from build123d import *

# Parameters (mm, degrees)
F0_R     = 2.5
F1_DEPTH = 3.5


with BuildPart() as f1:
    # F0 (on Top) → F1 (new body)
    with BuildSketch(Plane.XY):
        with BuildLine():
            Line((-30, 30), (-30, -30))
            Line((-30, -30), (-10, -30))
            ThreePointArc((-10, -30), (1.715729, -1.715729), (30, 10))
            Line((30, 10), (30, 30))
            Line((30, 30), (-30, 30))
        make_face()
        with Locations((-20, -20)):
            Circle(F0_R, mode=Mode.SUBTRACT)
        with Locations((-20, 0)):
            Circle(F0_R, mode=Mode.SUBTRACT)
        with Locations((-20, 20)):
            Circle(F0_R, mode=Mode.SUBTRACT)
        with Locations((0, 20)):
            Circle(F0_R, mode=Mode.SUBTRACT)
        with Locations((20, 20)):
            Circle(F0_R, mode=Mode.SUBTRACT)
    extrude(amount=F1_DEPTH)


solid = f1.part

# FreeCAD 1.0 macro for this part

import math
import FreeCAD as App
import Part
import Sketcher
from FreeCAD import Vector
Q = App.Units.Quantity

doc = App.newDocument("Part")
body = doc.addObject("PartDesign::Body", "Body")

# Sketch on XY plane
sketch1 = doc.addObject("Sketcher::SketchObject", "Sketch")
body.addObject(sketch1)
sketch1.AttachmentSupport = (doc.XY_Plane, [""])
sketch1.MapMode = "FlatFace"
sketch1.addGeometry(Part.LineSegment(Vector(-30, 30, 0), Vector(-30, -30, 0)), False)
sketch1.addGeometry(Part.LineSegment(Vector(-30, -30, 0), Vector(-10, -30, 0)), False)
sketch1.addGeometry(Part.ArcOfCircle(Part.Circle(Vector(30, -30, 0), Vector(0, 0, 1), 40), math.radians(90), math.radians(180)), False)
sketch1.addGeometry(Part.LineSegment(Vector(30, 10, 0), Vector(30, 30, 0)), False)
sketch1.addGeometry(Part.LineSegment(Vector(30, 30, 0), Vector(-30, 30, 0)), False)
sketch1.addGeometry(Part.Circle(Vector(-20, -20, 0), Vector(0, 0, 1), 2.5), False)
sketch1.addGeometry(Part.Circle(Vector(-20, 0, 0), Vector(0, 0, 1), 2.5), False)
sketch1.addGeometry(Part.Circle(Vector(-20, 20, 0), Vector(0, 0, 1), 2.5), False)
sketch1.addGeometry(Part.Circle(Vector(0, 20, 0), Vector(0, 0, 1), 2.5), False)
sketch1.addGeometry(Part.Circle(Vector(20, 20, 0), Vector(0, 0, 1), 2.5), False)
sketch1.addConstraint(Sketcher.Constraint("Coincident", 0, 2, 1, 1))
sketch1.addConstraint(Sketcher.Constraint("Coincident", 1, 2, 2, 2))
sketch1.addConstraint(Sketcher.Constraint("Coincident", 2, 1, 3, 1))
sketch1.addConstraint(Sketcher.Constraint("Coincident", 3, 2, 4, 1))
sketch1.addConstraint(Sketcher.Constraint("Coincident", 4, 2, 0, 1))
sketch1.addConstraint(Sketcher.Constraint("Vertical", 0))
sketch1.addConstraint(Sketcher.Constraint("Horizontal", 1))
sketch1.addConstraint(Sketcher.Constraint("Vertical", 3))
sketch1.addConstraint(Sketcher.Constraint("Horizontal", 4))
sketch1.addConstraint(Sketcher.Constraint("Equal", 5, 6))
sketch1.addConstraint(Sketcher.Constraint("Equal", 6, 7))
sketch1.addConstraint(Sketcher.Constraint("Equal", 7, 8))
sketch1.addConstraint(Sketcher.Constraint("Equal", 8, 9))
sketch1.addConstraint(Sketcher.Constraint("Symmetric", 5, 3, 9, 3, -1, 1))
sketch1.addConstraint(Sketcher.Constraint("Symmetric", 0, 2, 3, 2, -1, 1))
sketch1.addConstraint(Sketcher.Constraint("Symmetric", 7, 3, 9, 3, -2))
sketch1.addConstraint(Sketcher.Constraint("PointOnObject", 6, 3, -1))
sketch1.addConstraint(Sketcher.Constraint("PointOnObject", 8, 3, -2))
sketch1.addConstraint(Sketcher.Constraint("Horizontal", 7, 3, 8, 3))
sketch1.addConstraint(Sketcher.Constraint("Horizontal", 2, 3, 0, 2))
sketch1.addConstraint(Sketcher.Constraint("Vertical", 5, 3, 6, 3))
sketch1.addConstraint(Sketcher.Constraint("Equal", 4, 0))
sketch1.addConstraint(Sketcher.Constraint("Equal", 1, 3))
sketch1.addConstraint(Sketcher.Constraint("Diameter", 5, Q("5 mm")))
sketch1.addConstraint(Sketcher.Constraint("Radius", 2, Q("40.000001 mm")))
sketch1.addConstraint(Sketcher.Constraint("DistanceX", 1, 1, 1, 2, Q("20 mm")))
sketch1.addConstraint(Sketcher.Constraint("DistanceX", 5, 3, -1, 1, Q("20 mm")))
sketch1.addConstraint(Sketcher.Constraint("DistanceY", 5, 3, -1, 1, Q("20 mm")))
pad1 = doc.addObject("PartDesign::Pad", "Pad")
body.addObject(pad1)
pad1.Profile = sketch1
pad1.Length = 3.5

doc.recompute()
